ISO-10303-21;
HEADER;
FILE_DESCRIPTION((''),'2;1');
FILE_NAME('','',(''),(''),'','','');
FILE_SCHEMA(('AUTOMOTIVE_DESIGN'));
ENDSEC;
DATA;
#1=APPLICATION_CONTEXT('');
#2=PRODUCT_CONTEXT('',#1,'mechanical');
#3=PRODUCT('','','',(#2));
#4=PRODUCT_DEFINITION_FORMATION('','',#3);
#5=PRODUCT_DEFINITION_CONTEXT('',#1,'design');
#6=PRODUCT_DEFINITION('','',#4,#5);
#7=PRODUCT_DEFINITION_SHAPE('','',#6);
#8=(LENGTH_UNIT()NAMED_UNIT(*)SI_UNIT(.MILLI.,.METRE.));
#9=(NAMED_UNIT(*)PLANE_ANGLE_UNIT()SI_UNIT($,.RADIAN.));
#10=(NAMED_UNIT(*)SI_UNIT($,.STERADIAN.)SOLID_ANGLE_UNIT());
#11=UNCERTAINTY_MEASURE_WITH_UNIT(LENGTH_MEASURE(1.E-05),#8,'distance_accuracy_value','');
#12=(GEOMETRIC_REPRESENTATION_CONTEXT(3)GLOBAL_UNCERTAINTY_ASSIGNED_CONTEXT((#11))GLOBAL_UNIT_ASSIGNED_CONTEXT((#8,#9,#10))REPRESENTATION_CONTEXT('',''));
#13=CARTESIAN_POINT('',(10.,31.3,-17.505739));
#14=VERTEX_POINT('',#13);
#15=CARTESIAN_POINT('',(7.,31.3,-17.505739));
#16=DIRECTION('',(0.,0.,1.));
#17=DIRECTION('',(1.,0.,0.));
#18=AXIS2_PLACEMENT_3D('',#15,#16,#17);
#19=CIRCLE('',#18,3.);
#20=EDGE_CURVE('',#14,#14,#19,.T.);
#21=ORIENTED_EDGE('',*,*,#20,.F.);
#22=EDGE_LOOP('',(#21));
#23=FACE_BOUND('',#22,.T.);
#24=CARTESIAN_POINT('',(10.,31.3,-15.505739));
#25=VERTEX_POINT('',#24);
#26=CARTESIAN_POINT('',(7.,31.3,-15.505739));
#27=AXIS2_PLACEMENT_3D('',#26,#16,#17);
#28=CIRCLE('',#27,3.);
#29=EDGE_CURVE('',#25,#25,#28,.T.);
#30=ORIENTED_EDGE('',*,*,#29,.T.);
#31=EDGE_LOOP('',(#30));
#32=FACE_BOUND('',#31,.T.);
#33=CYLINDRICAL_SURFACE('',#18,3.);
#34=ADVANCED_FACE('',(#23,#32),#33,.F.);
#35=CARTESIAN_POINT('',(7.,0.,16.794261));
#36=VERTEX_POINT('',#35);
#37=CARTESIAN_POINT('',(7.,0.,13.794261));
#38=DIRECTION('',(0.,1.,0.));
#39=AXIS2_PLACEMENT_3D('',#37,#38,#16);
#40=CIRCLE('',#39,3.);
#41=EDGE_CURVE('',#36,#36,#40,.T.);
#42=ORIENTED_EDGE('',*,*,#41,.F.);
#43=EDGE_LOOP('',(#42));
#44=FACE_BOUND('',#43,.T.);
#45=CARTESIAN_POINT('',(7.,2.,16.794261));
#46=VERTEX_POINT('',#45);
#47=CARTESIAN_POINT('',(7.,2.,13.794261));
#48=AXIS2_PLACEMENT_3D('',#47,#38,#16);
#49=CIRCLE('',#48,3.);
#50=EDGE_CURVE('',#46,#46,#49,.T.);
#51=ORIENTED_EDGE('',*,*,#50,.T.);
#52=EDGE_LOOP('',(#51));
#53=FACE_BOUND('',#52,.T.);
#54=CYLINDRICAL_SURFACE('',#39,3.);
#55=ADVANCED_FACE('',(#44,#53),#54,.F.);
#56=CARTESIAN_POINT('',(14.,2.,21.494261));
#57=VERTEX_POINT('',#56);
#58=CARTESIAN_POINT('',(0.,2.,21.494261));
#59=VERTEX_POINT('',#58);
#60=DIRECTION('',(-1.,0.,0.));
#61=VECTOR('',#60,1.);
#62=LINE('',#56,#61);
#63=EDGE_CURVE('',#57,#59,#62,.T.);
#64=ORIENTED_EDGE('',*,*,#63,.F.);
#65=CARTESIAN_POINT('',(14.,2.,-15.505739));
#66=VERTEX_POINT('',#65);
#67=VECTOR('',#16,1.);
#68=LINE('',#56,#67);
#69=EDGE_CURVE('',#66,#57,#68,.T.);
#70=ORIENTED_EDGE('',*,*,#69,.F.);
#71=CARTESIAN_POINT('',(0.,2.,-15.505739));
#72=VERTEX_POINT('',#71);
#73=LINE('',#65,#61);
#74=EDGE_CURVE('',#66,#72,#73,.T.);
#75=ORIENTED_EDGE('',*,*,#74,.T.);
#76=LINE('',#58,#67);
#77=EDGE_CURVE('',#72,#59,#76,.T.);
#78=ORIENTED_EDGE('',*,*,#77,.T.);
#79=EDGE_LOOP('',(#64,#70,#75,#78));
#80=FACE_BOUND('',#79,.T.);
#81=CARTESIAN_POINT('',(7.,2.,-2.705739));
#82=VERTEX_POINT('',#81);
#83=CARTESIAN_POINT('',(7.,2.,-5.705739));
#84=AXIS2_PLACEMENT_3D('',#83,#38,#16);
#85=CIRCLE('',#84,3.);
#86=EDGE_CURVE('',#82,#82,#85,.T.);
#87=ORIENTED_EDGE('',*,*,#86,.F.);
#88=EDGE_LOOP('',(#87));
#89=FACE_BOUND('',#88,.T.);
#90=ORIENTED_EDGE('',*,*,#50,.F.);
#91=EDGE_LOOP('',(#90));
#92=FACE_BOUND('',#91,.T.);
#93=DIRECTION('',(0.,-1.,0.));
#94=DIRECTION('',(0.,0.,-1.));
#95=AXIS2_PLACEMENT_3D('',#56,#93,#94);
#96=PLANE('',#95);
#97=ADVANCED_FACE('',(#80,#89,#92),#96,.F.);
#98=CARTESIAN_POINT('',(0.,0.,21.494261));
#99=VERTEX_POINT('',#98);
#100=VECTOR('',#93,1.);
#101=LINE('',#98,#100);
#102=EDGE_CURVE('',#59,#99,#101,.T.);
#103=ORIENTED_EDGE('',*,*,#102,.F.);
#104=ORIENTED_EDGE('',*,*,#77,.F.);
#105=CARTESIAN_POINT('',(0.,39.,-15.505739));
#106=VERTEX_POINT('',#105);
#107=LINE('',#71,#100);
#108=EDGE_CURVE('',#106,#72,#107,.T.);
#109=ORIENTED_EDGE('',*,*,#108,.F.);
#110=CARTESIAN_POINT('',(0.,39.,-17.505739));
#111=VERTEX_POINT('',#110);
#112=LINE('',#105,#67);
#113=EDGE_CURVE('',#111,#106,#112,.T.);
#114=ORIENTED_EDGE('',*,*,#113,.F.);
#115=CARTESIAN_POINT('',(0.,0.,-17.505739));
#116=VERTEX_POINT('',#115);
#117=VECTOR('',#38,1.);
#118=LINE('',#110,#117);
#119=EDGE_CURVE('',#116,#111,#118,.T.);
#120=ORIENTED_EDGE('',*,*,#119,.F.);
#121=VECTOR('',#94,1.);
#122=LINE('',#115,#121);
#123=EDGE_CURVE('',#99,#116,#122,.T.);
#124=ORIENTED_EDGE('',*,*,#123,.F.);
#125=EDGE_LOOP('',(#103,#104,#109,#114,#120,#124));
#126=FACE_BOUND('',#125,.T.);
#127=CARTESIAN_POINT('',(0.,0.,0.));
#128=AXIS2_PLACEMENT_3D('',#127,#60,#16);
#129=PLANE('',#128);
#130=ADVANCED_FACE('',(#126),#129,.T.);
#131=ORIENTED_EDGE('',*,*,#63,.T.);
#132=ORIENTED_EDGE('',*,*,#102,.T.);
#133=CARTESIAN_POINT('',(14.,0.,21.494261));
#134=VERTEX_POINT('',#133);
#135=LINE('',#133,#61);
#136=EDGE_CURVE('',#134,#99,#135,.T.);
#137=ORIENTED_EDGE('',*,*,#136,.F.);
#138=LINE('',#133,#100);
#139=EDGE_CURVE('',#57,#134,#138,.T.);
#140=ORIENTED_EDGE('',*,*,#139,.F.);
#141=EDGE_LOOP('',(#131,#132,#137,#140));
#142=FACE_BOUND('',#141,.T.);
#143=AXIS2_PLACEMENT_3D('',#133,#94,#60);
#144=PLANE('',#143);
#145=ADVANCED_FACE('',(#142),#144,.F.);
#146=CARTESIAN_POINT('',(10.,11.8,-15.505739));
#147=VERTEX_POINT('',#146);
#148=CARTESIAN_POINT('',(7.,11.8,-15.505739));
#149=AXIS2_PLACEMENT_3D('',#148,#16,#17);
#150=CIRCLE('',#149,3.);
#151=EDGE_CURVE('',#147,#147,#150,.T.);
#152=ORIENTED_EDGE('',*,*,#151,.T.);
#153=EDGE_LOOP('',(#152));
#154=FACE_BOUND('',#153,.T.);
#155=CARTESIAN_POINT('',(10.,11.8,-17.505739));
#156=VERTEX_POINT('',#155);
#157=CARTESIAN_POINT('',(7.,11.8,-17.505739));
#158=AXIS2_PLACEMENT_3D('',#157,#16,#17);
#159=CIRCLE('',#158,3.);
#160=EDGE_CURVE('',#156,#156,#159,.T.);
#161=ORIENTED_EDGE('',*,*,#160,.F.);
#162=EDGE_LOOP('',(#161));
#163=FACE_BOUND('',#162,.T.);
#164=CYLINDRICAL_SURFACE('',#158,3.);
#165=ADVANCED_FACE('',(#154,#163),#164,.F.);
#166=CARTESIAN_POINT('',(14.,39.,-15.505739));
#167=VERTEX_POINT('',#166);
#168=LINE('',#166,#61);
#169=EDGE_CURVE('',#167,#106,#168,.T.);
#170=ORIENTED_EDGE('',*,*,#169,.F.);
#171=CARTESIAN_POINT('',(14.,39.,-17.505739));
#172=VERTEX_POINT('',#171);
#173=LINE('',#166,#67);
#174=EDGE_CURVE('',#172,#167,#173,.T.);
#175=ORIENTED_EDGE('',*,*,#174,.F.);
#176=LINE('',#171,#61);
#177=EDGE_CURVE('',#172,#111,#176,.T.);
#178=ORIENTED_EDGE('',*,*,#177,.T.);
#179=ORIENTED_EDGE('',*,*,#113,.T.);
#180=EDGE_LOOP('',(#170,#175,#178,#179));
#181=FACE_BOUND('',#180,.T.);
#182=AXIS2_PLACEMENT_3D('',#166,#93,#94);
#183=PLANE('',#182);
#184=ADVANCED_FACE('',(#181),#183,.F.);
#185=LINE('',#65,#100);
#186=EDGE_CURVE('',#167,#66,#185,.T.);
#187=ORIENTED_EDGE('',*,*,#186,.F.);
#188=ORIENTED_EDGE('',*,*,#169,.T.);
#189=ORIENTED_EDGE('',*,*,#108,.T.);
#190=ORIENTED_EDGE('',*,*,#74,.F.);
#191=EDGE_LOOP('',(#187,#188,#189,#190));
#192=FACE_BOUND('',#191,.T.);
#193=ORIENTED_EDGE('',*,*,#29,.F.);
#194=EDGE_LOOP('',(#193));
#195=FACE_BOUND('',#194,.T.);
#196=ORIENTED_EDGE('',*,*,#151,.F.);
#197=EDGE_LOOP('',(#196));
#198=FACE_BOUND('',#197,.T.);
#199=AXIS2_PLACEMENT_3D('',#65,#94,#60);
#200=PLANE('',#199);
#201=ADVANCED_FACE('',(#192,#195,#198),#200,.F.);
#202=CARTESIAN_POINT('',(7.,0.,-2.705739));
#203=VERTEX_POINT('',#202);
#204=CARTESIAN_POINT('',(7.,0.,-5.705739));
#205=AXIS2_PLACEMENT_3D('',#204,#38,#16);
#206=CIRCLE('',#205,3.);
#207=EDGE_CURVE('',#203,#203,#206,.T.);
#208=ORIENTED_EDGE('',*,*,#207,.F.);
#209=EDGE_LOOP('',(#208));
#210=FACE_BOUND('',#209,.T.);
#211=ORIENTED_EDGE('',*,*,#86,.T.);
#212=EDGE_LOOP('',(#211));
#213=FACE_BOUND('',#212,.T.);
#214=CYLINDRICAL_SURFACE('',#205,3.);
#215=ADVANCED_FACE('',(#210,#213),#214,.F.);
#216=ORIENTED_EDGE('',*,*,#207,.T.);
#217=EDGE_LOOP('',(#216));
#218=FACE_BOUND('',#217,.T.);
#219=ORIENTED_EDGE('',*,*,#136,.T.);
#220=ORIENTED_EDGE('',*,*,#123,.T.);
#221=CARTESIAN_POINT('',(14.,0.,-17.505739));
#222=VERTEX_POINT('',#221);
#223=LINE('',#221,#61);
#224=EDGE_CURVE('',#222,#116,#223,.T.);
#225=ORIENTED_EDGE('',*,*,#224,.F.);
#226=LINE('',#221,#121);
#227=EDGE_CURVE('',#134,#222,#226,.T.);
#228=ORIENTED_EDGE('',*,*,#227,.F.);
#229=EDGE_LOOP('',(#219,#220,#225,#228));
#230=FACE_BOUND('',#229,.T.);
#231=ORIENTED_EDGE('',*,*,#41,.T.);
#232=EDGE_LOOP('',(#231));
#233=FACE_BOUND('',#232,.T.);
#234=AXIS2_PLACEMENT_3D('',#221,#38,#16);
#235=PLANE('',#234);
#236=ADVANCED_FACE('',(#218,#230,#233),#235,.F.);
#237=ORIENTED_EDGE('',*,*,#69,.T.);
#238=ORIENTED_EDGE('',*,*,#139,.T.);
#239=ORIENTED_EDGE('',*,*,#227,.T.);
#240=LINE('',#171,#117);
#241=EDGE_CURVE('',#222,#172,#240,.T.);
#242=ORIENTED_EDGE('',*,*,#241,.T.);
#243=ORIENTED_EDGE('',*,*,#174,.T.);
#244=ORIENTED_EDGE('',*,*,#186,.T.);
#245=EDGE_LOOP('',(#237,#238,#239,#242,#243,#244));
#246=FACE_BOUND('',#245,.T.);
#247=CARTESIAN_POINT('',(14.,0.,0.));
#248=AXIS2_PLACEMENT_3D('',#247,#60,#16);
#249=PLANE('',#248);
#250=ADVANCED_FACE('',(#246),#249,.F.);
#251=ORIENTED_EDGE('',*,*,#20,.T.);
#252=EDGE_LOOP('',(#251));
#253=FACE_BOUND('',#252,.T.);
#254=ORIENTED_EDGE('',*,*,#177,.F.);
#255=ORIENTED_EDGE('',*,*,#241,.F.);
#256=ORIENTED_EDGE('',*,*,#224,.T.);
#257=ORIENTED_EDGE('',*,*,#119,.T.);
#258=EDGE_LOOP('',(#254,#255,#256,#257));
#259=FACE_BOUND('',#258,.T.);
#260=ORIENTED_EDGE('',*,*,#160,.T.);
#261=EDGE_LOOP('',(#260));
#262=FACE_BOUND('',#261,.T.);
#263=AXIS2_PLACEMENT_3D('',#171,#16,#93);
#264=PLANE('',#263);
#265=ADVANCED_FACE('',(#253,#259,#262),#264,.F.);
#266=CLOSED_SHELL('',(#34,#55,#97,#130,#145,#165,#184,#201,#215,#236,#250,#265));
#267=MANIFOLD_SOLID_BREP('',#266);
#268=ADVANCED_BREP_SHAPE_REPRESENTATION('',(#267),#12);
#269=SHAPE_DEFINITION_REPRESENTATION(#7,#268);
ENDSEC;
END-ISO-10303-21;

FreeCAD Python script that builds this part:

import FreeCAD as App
import Part
import Sketcher

doc = App.newDocument("Part")
body = doc.addObject("PartDesign::Body", "Body")

sketch1 = body.newObject("Sketcher::SketchObject", "Sketch")
sketch1.AttachmentSupport = (doc.getObject("YZ_Plane"), [""])
sketch1.MapMode = "FlatFace"
sketch1.addGeometry(Part.LineSegment(App.Vector(2, -15.505739, 0), App.Vector(2, 21.494261, 0)), False)
sketch1.addGeometry(Part.LineSegment(App.Vector(2, 21.494261, 0), App.Vector(0, 21.494261, 0)), False)
sketch1.addGeometry(Part.LineSegment(App.Vector(0, 21.494261, 0), App.Vector(0, -17.505739, 0)), False)
sketch1.addGeometry(Part.LineSegment(App.Vector(0, -17.505739, 0), App.Vector(39, -17.505739, 0)), False)
sketch1.addGeometry(Part.LineSegment(App.Vector(39, -17.505739, 0), App.Vector(39, -15.505739, 0)), False)
sketch1.addGeometry(Part.LineSegment(App.Vector(39, -15.505739, 0), App.Vector(2, -15.505739, 0)), False)
sketch1.addConstraint(Sketcher.Constraint("Coincident", 0, 2, 1, 1))
sketch1.addConstraint(Sketcher.Constraint("Coincident", 1, 2, 2, 1))
sketch1.addConstraint(Sketcher.Constraint("Coincident", 2, 2, 3, 1))
sketch1.addConstraint(Sketcher.Constraint("Coincident", 3, 2, 4, 1))
sketch1.addConstraint(Sketcher.Constraint("Coincident", 4, 2, 5, 1))
sketch1.addConstraint(Sketcher.Constraint("Coincident", 5, 2, 0, 1))
sketch1.addConstraint(Sketcher.Constraint("Vertical", 0))
sketch1.addConstraint(Sketcher.Constraint("Horizontal", 1))
sketch1.addConstraint(Sketcher.Constraint("Vertical", 2))
sketch1.addConstraint(Sketcher.Constraint("Horizontal", 3))
sketch1.addConstraint(Sketcher.Constraint("Vertical", 4))
sketch1.addConstraint(Sketcher.Constraint("Horizontal", 5))
sketch1.addConstraint(Sketcher.Constraint("PointOnObject", 1, 2, -2))
sketch1.addConstraint(Sketcher.Constraint("Equal", 5, 0))
sketch1.addConstraint(Sketcher.Constraint("Equal", 3, 2))
sketch1.addConstraint(Sketcher.Constraint("DistanceX", 1, 2, 1, 1, 2.0))
sketch1.addConstraint(Sketcher.Constraint("DistanceX", 3, 1, 3, 2, 39.0))
sketch1.addConstraint(Sketcher.Constraint("DistanceY", -1, 1, 0, 2, 21.494261))
pad1 = body.newObject("PartDesign::Pad", "Pad")
pad1.Profile = sketch1
pad1.Length = 14

sketch2 = body.newObject("Sketcher::SketchObject", "Sketch001")
sketch2.AttachmentSupport = (doc.getObject("XZ_Plane"), [""])
sketch2.MapMode = "FlatFace"
sketch2.AttachmentOffset = App.Placement(App.Vector(0, 0, -2), App.Rotation())
sketch2.addGeometry(Part.Circle(App.Vector(7, 13.794261, 0), App.Vector(0, 0, 1), 3), False)
sketch2.addGeometry(Part.Circle(App.Vector(7, -5.705739, 0), App.Vector(0, 0, 1), 3), False)
sketch2.addConstraint(Sketcher.Constraint("Equal", 0, 1))
sketch2.addConstraint(Sketcher.Constraint("Vertical", 0, 3, 1, 3))
sketch2.addConstraint(Sketcher.Constraint("Diameter", 0, 6.0))
sketch2.addConstraint(Sketcher.Constraint("DistanceX", -1, 1, 0, 3, 7.0))
sketch2.addConstraint(Sketcher.Constraint("DistanceY", 1, 3, 0, 3, 19.5))
sketch2.addConstraint(Sketcher.Constraint("DistanceY", -1, 1, 0, 3, 13.794261))
pocket1 = body.newObject("PartDesign::Pocket", "Pocket")
pocket1.Profile = sketch2
pocket1.Type = "ThroughAll"
pocket1.Reversed = True

sketch3 = body.newObject("Sketcher::SketchObject", "Sketch002")
sketch3.AttachmentSupport = (doc.getObject("XY_Plane"), [""])
sketch3.MapMode = "FlatFace"
sketch3.AttachmentOffset = App.Placement(App.Vector(0, 0, -15.505739), App.Rotation())
sketch3.addGeometry(Part.Circle(App.Vector(7, 11.8, 0), App.Vector(0, 0, 1), 3), False)
sketch3.addGeometry(Part.Circle(App.Vector(7, 31.3, 0), App.Vector(0, 0, 1), 3), False)
sketch3.addConstraint(Sketcher.Constraint("Equal", 0, 1))
sketch3.addConstraint(Sketcher.Constraint("Vertical", 0, 3, 1, 3))
sketch3.addConstraint(Sketcher.Constraint("Diameter", 0, 6.0))
sketch3.addConstraint(Sketcher.Constraint("DistanceX", -1, 1, 0, 3, 7.0))
sketch3.addConstraint(Sketcher.Constraint("DistanceY", -1, 1, 0, 3, 11.8))
sketch3.addConstraint(Sketcher.Constraint("DistanceY", -1, 1, 1, 3, 31.3))
pocket2 = body.newObject("PartDesign::Pocket", "Pocket001")
pocket2.Profile = sketch3
pocket2.Type = "ThroughAll"

doc.recompute()
